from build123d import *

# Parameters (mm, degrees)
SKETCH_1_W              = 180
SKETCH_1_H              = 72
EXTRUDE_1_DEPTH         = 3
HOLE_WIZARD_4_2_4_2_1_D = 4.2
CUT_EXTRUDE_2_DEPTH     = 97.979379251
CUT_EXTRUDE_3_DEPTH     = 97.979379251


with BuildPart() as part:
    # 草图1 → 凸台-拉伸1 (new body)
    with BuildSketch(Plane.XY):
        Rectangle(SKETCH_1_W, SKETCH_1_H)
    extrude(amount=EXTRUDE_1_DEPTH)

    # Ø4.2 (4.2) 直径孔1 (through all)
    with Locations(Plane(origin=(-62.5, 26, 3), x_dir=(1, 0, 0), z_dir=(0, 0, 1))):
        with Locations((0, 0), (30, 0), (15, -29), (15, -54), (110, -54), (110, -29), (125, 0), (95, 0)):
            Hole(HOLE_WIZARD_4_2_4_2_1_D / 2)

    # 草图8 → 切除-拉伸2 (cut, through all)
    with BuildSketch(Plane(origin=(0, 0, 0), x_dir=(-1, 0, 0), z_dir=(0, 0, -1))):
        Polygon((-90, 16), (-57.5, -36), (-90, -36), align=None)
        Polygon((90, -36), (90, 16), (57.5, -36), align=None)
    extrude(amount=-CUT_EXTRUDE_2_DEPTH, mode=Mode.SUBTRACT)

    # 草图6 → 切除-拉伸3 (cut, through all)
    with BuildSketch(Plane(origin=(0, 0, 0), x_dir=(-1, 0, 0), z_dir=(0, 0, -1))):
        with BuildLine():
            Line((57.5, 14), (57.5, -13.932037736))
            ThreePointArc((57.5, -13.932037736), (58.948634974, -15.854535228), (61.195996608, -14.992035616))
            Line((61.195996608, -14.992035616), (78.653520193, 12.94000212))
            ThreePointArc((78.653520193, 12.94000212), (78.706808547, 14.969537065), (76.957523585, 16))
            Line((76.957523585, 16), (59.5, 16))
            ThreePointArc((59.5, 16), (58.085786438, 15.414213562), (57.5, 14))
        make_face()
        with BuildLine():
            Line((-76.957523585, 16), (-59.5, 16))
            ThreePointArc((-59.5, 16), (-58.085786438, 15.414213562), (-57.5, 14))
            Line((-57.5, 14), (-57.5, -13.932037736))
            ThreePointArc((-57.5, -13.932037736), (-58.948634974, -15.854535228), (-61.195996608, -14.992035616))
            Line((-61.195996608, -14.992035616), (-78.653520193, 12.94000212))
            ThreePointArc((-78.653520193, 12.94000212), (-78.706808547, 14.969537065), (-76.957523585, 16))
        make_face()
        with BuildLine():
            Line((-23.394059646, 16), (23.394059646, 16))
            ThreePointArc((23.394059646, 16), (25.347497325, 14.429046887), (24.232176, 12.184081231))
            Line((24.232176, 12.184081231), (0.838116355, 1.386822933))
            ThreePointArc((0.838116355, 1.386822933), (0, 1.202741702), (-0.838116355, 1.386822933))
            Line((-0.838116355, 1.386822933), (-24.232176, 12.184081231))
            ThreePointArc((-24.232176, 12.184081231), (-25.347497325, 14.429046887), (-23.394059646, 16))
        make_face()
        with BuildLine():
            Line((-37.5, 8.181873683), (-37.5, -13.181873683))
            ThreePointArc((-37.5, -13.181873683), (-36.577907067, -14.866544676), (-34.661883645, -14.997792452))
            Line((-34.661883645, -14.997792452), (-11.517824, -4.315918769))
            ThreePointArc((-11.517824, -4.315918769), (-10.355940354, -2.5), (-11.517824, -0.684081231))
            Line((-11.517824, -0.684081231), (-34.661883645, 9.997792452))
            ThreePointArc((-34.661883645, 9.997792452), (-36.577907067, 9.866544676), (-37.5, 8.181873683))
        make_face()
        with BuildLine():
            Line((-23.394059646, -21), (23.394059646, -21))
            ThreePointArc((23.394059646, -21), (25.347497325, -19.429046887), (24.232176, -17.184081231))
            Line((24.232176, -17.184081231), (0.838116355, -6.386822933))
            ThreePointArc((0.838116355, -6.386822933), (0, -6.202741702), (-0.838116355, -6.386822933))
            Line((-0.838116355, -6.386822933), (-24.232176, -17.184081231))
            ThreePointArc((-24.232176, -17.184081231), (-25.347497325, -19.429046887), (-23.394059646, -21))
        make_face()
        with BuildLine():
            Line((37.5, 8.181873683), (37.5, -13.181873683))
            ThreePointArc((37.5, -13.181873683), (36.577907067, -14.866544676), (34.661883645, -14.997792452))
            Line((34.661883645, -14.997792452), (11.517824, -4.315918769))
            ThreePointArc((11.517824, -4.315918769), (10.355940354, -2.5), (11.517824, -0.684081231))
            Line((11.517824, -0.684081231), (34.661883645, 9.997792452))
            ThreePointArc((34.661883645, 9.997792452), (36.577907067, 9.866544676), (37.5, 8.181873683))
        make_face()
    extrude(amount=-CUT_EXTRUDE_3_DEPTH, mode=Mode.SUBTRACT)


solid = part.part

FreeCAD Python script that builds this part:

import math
import FreeCAD as App
import Part
import Sketcher
Q = App.Units.Quantity

doc = App.newDocument("Part")
params = doc.addObject("Spreadsheet::Sheet", "Params")
for row, (alias, value) in enumerate([
    ("sketch1_width", "180 mm"),
    ("sketch1_height", "72 mm"),
    ("pad1_length", "3 mm"),
    ("sketch2_diameter", "4.2 mm"),
    ("hole_diameter", "4.2 mm"),
    ("sketch3_height", "52 mm"),
    ("sketch3_width", "32.5 mm"),
    ("sketch4_radius", "2 mm"),
], start=1):
    params.set(f"A{row}", alias)
    params.set(f"B{row}", "=" + value)
    params.setAlias(f"B{row}", alias)

body = doc.addObject("PartDesign::Body", "Body")

sketch1 = body.newObject("Sketcher::SketchObject", "Sketch")
sketch1.AttachmentSupport = (doc.getObject("XY_Plane"), [""])
sketch1.MapMode = "FlatFace"
sketch1.addGeometry([
    Part.LineSegment(App.Vector(-90, 36, 0), App.Vector(-90, -36, 0)),
    Part.LineSegment(App.Vector(-90, -36, 0), App.Vector(90, -36, 0)),
    Part.LineSegment(App.Vector(90, -36, 0), App.Vector(90, 36, 0)),
    Part.LineSegment(App.Vector(90, 36, 0), App.Vector(-90, 36, 0)),
], False)
sketch1.addConstraint([
    Sketcher.Constraint("Coincident", 0, 2, 1, 1),
    Sketcher.Constraint("Coincident", 1, 2, 2, 1),
    Sketcher.Constraint("Coincident", 2, 2, 3, 1),
    Sketcher.Constraint("Coincident", 3, 2, 0, 1),
    Sketcher.Constraint("Vertical", 0),
    Sketcher.Constraint("Horizontal", 1),
    Sketcher.Constraint("Vertical", 2),
    Sketcher.Constraint("Horizontal", 3),
    Sketcher.Constraint("Symmetric", 0, 2, 2, 2, -1, 1),
    Sketcher.Constraint("DistanceX", 1, 1, 1, 2, Q("180 mm")),
    Sketcher.Constraint("DistanceY", 0, 2, 0, 1, Q("72 mm")),
])
sketch1.setExpression("Constraints[9]", "Params.sketch1_width")
sketch1.setExpression("Constraints[10]", "Params.sketch1_height")
pad1 = body.newObject("PartDesign::Pad", "Pad")
pad1.Profile = sketch1
pad1.setExpression("Length", "Params.pad1_length")

sketch2 = body.newObject("Sketcher::SketchObject", "Sketch001")
sketch2.AttachmentSupport = (doc.getObject("XY_Plane"), [""])
sketch2.MapMode = "FlatFace"
sketch2.AttachmentOffset = App.Placement(App.Vector(0, 0, 3), App.Rotation())
sketch2.addGeometry([
    Part.Circle(App.Vector(-62.5, 26, 0), App.Vector(0, 0, 1), 2.1),
    Part.Circle(App.Vector(-32.5, 26, 0), App.Vector(0, 0, 1), 2.1),
    Part.Circle(App.Vector(-47.5, -3, 0), App.Vector(0, 0, 1), 2.1),
    Part.Circle(App.Vector(-47.5, -28, 0), App.Vector(0, 0, 1), 2.1),
    Part.Circle(App.Vector(47.5, -28, 0), App.Vector(0, 0, 1), 2.1),
    Part.Circle(App.Vector(47.5, -3, 0), App.Vector(0, 0, 1), 2.1),
    Part.Circle(App.Vector(62.5, 26, 0), App.Vector(0, 0, 1), 2.1),
    Part.Circle(App.Vector(32.5, 26, 0), App.Vector(0, 0, 1), 2.1),
], False)
sketch2.addConstraint([
    Sketcher.Constraint("Equal", 0, 1),
    Sketcher.Constraint("Equal", 1, 2),
    Sketcher.Constraint("Equal", 2, 3),
    Sketcher.Constraint("Equal", 3, 4),
    Sketcher.Constraint("Equal", 4, 5),
    Sketcher.Constraint("Equal", 5, 6),
    Sketcher.Constraint("Equal", 6, 7),
    Sketcher.Constraint("Symmetric", 3, 3, 4, 3, -2),
    Sketcher.Constraint("Symmetric", 2, 3, 5, 3, -2),
    Sketcher.Constraint("Symmetric", 0, 3, 6, 3, -2),
    Sketcher.Constraint("Symmetric", 1, 3, 7, 3, -2),
    Sketcher.Constraint("Horizontal", 0, 3, 1, 3),
    Sketcher.Constraint("Vertical", 2, 3, 3, 3),
    Sketcher.Constraint("Diameter", 0, Q("4.2 mm")),
    Sketcher.Constraint("DistanceY", -1, 1, 0, 3, Q("26 mm")),
    Sketcher.Constraint("DistanceY", 2, 3, -1, 1, Q("3 mm")),
    Sketcher.Constraint("DistanceY", 3, 3, -1, 1, Q("28 mm")),
    Sketcher.Constraint("DistanceX", 0, 3, 1, 3, Q("30 mm")),
    Sketcher.Constraint("DistanceX", 0, 3, 2, 3, Q("15 mm")),
    Sketcher.Constraint("DistanceX", 3, 3, 4, 3, Q("95 mm")),
])
sketch2.setExpression("Constraints[13]", "Params.sketch2_diameter")
doc.recompute()
hole = body.newObject("PartDesign::Hole", "Hole")
hole.Profile = sketch2
hole.ThreadType = "None"
hole.setExpression("Diameter", "Params.hole_diameter")
hole.DepthType = "ThroughAll"

sketch3 = body.newObject("Sketcher::SketchObject", "Sketch002")
sketch3.AttachmentSupport = (doc.getObject("XY_Plane"), [""])
sketch3.MapMode = "FlatFace"
sketch3.addGeometry([
    Part.LineSegment(App.Vector(58, -36, 0), App.Vector(90, 16, 0)),
    Part.LineSegment(App.Vector(90, 16, 0), App.Vector(90, -36, 0)),
    Part.LineSegment(App.Vector(90, -36, 0), App.Vector(58, -36, 0)),
    Part.LineSegment(App.Vector(-90, -36, 0), App.Vector(-90, 16, 0)),
    Part.LineSegment(App.Vector(-90, 16, 0), App.Vector(-58, -36, 0)),
    Part.LineSegment(App.Vector(-58, -36, 0), App.Vector(-90, -36, 0)),
], False)
sketch3.addConstraint([
    Sketcher.Constraint("Coincident", 0, 2, 1, 1),
    Sketcher.Constraint("Coincident", 1, 2, 2, 1),
    Sketcher.Constraint("Coincident", 2, 2, 0, 1),
    Sketcher.Constraint("Coincident", 3, 2, 4, 1),
    Sketcher.Constraint("Coincident", 4, 2, 5, 1),
    Sketcher.Constraint("Coincident", 5, 2, 3, 1),
    Sketcher.Constraint("Vertical", 1),
    Sketcher.Constraint("Horizontal", 2),
    Sketcher.Constraint("Vertical", 3),
    Sketcher.Constraint("Horizontal", 5),
    Sketcher.Constraint("Symmetric", 0, 2, 3, 2, -2),
    Sketcher.Constraint("Symmetric", 2, 2, 4, 2, -2),
    Sketcher.Constraint("DistanceY", 1, 2, 1, 1, Q("52 mm")),
    Sketcher.Constraint("DistanceX", 2, 2, 2, 1, Q("32.5 mm")),
    Sketcher.Constraint("DistanceX", -1, 1, 0, 2, Q("90 mm")),
    Sketcher.Constraint("DistanceY", -1, 1, 0, 2, Q("16 mm")),
])
sketch3.setExpression("Constraints[12]", "Params.sketch3_height")
sketch3.setExpression("Constraints[13]", "Params.sketch3_width")
pocket1 = body.newObject("PartDesign::Pocket", "Pocket")
pocket1.Profile = sketch3
pocket1.Type = "ThroughAll"
pocket1.Reversed = True

sketch4 = body.newObject("Sketcher::SketchObject", "Sketch003")
sketch4.AttachmentSupport = (doc.getObject("XY_Plane"), [""])
sketch4.MapMode = "FlatFace"
sketch4.addGeometry([
    Part.LineSegment(App.Vector(-57.5, 14, 0), App.Vector(-57.5, -13.9, 0)),
    Part.ArcOfCircle(Part.Circle(App.Vector(-59.5, -13.9, 0), App.Vector(0, 0, 1), 2), math.radians(-148), math.radians(0)),
    Part.LineSegment(App.Vector(-61.2, -15, 0), App.Vector(-78.7, 12.9, 0)),
    Part.ArcOfCircle(Part.Circle(App.Vector(-77, 14, 0), App.Vector(0, 0, 1), 2), math.radians(90), math.radians(212)),
    Part.LineSegment(App.Vector(-77, 16, 0), App.Vector(-59.5, 16, 0)),
    Part.ArcOfCircle(Part.Circle(App.Vector(-59.5, 14, 0), App.Vector(0, 0, 1), 2), math.radians(0), math.radians(90)),
    Part.LineSegment(App.Vector(59.5, 16, 0), App.Vector(77, 16, 0)),
    Part.ArcOfCircle(Part.Circle(App.Vector(77, 14, 0), App.Vector(0, 0, 1), 2), math.radians(-32), math.radians(90)),
    Part.LineSegment(App.Vector(78.7, 12.9, 0), App.Vector(61.2, -15, 0)),
    Part.ArcOfCircle(Part.Circle(App.Vector(59.5, -13.9, 0), App.Vector(0, 0, 1), 2), math.radians(180), math.radians(328)),
    Part.LineSegment(App.Vector(57.5, -13.9, 0), App.Vector(57.5, 14, 0)),
    Part.ArcOfCircle(Part.Circle(App.Vector(59.5, 14, 0), App.Vector(0, 0, 1), 2), math.radians(90), math.radians(180)),
    Part.LineSegment(App.Vector(-23.4, 16, 0), App.Vector(23.4, 16, 0)),
    Part.ArcOfCircle(Part.Circle(App.Vector(23.4, 14, 0), App.Vector(0, 0, 1), 2), math.radians(-65), math.radians(90)),
    Part.LineSegment(App.Vector(24.2, 12.2, 0), App.Vector(0.8, 1.4, 0)),
    Part.ArcOfCircle(Part.Circle(App.Vector(0, 3.2, 0), App.Vector(0, 0, 1), 2), math.radians(-115), math.radians(-65)),
    Part.LineSegment(App.Vector(-0.8, 1.4, 0), App.Vector(-24.2, 12.2, 0)),
    Part.ArcOfCircle(Part.Circle(App.Vector(-23.4, 14, 0), App.Vector(0, 0, 1), 2), math.radians(90), math.radians(245)),
    Part.LineSegment(App.Vector(37.5, 8.2, 0), App.Vector(37.5, -13.2, 0)),
    Part.ArcOfCircle(Part.Circle(App.Vector(35.5, -13.2, 0), App.Vector(0, 0, 1), 2), math.radians(-115), math.radians(0)),
    Part.LineSegment(App.Vector(34.7, -15, 0), App.Vector(11.5, -4.3, 0)),
    Part.ArcOfCircle(Part.Circle(App.Vector(12.4, -2.5, 0), App.Vector(0, 0, 1), 2), math.radians(115), math.radians(245)),
    Part.LineSegment(App.Vector(11.5, -0.7, 0), App.Vector(34.7, 10, 0)),
    Part.ArcOfCircle(Part.Circle(App.Vector(35.5, 8.2, 0), App.Vector(0, 0, 1), 2), math.radians(0), math.radians(115)),
    Part.LineSegment(App.Vector(23.4, -21, 0), App.Vector(-23.4, -21, 0)),
    Part.ArcOfCircle(Part.Circle(App.Vector(-23.4, -19, 0), App.Vector(0, 0, 1), 2), math.radians(115), math.radians(270)),
    Part.LineSegment(App.Vector(-24.2, -17.2, 0), App.Vector(-0.8, -6.4, 0)),
    Part.ArcOfCircle(Part.Circle(App.Vector(0, -8.2, 0), App.Vector(0, 0, 1), 2), math.radians(65), math.radians(115)),
    Part.LineSegment(App.Vector(0.8, -6.4, 0), App.Vector(24.2, -17.2, 0)),
    Part.ArcOfCircle(Part.Circle(App.Vector(23.4, -19, 0), App.Vector(0, 0, 1), 2), math.radians(-90), math.radians(65)),
    Part.LineSegment(App.Vector(-37.5, -13.2, 0), App.Vector(-37.5, 8.2, 0)),
    Part.ArcOfCircle(Part.Circle(App.Vector(-35.5, 8.2, 0), App.Vector(0, 0, 1), 2), math.radians(65), math.radians(180)),
    Part.LineSegment(App.Vector(-34.7, 10, 0), App.Vector(-11.5, -0.7, 0)),
    Part.ArcOfCircle(Part.Circle(App.Vector(-12.4, -2.5, 0), App.Vector(0, 0, 1), 2), math.radians(-65), math.radians(65)),
    Part.LineSegment(App.Vector(-11.5, -4.3, 0), App.Vector(-34.7, -15, 0)),
    Part.ArcOfCircle(Part.Circle(App.Vector(-35.5, -13.2, 0), App.Vector(0, 0, 1), 2), math.radians(180), math.radians(295)),
], False)
sketch4.addConstraint([
    Sketcher.Constraint("Tangent", 0, 2, 1, 2),
    Sketcher.Constraint("Tangent", 1, 1, 2, 1),
    Sketcher.Constraint("Tangent", 2, 2, 3, 2),
    Sketcher.Constraint("Tangent", 3, 1, 4, 1),
    Sketcher.Constraint("Tangent", 4, 2, 5, 2),
    Sketcher.Constraint("Tangent", 5, 1, 0, 1),
    Sketcher.Constraint("Tangent", 6, 2, 7, 2),
    Sketcher.Constraint("Tangent", 7, 1, 8, 1),
    Sketcher.Constraint("Tangent", 8, 2, 9, 2),
    Sketcher.Constraint("Tangent", 9, 1, 10, 1),
    Sketcher.Constraint("Tangent", 10, 2, 11, 2),
    Sketcher.Constraint("Tangent", 11, 1, 6, 1),
    Sketcher.Constraint("Tangent", 12, 2, 13, 2),
    Sketcher.Constraint("Tangent", 13, 1, 14, 1),
    Sketcher.Constraint("Tangent", 14, 2, 15, 2),
    Sketcher.Constraint("Tangent", 15, 1, 16, 1),
    Sketcher.Constraint("Tangent", 16, 2, 17, 2),
    Sketcher.Constraint("Tangent", 17, 1, 12, 1),
    Sketcher.Constraint("Tangent", 18, 2, 19, 2),
    Sketcher.Constraint("Tangent", 19, 1, 20, 1),
    Sketcher.Constraint("Tangent", 20, 2, 21, 2),
    Sketcher.Constraint("Tangent", 21, 1, 22, 1),
    Sketcher.Constraint("Tangent", 22, 2, 23, 2),
    Sketcher.Constraint("Tangent", 23, 1, 18, 1),
    Sketcher.Constraint("Tangent", 24, 2, 25, 2),
    Sketcher.Constraint("Tangent", 25, 1, 26, 1),
    Sketcher.Constraint("Tangent", 26, 2, 27, 2),
    Sketcher.Constraint("Tangent", 27, 1, 28, 1),
    Sketcher.Constraint("Tangent", 28, 2, 29, 2),
    Sketcher.Constraint("Tangent", 29, 1, 24, 1),
    Sketcher.Constraint("Tangent", 30, 2, 31, 2),
    Sketcher.Constraint("Tangent", 31, 1, 32, 1),
    Sketcher.Constraint("Tangent", 32, 2, 33, 2),
    Sketcher.Constraint("Tangent", 33, 1, 34, 1),
    Sketcher.Constraint("Tangent", 34, 2, 35, 2),
    Sketcher.Constraint("Tangent", 35, 1, 30, 1),
    Sketcher.Constraint("Vertical", 0),
    Sketcher.Constraint("Horizontal", 4),
    Sketcher.Constraint("Horizontal", 6),
    Sketcher.Constraint("Vertical", 10),
    Sketcher.Constraint("Horizontal", 12),
    Sketcher.Constraint("Vertical", 18),
    Sketcher.Constraint("Horizontal", 24),
    Sketcher.Constraint("Vertical", 30),
    Sketcher.Constraint("Equal", 1, 3),
    Sketcher.Constraint("Equal", 3, 5),
    Sketcher.Constraint("Equal", 5, 7),
    Sketcher.Constraint("Equal", 7, 9),
    Sketcher.Constraint("Equal", 9, 11),
    Sketcher.Constraint("Equal", 11, 13),
    Sketcher.Constraint("Equal", 13, 15),
    Sketcher.Constraint("Equal", 15, 17),
    Sketcher.Constraint("Equal", 17, 19),
    Sketcher.Constraint("Equal", 19, 21),
    Sketcher.Constraint("Equal", 21, 23),
    Sketcher.Constraint("Equal", 23, 25),
    Sketcher.Constraint("Equal", 25, 27),
    Sketcher.Constraint("Equal", 27, 29),
    Sketcher.Constraint("Equal", 29, 31),
    Sketcher.Constraint("Equal", 31, 33),
    Sketcher.Constraint("Equal", 33, 35),
    Sketcher.Constraint("Symmetric", 3, 3, 7, 3, -2),
    Sketcher.Constraint("Symmetric", 1, 3, 9, 3, -2),
    Sketcher.Constraint("Symmetric", 23, 3, 31, 3, -2),
    Sketcher.Constraint("Symmetric", 21, 3, 33, 3, -2),
    Sketcher.Constraint("Symmetric", 14, 2, 15, 1, -2),
    Sketcher.Constraint("Symmetric", 26, 2, 27, 1, -2),
    Sketcher.Constraint("Parallel", 16, 20),
    Sketcher.Constraint("Parallel", 14, 22),
    Sketcher.Constraint("Parallel", 22, 26),
    Sketcher.Constraint("Parallel", 26, 34),
    Sketcher.Constraint("Horizontal", 11, 3, 13, 3),
    Sketcher.Constraint("Vertical", 17, 3, 25, 3),
    Sketcher.Constraint("Radius", 1, Q("2 mm")),
    Sketcher.Constraint("DistanceY", -1, 1, 3, 3, Q("14 mm")),
    Sketcher.Constraint("DistanceY", 25, 3, -1, 1, Q("19 mm")),
    Sketcher.Constraint("DistanceX", 1, 3, 9, 3, Q("119 mm")),
    Sketcher.Constraint("DistanceX", 19, 3, 9, 3, Q("24 mm")),
    Sketcher.Constraint("DistanceY", 21, 3, -1, 1, Q("2.5 mm")),
    Sketcher.Constraint("DistanceX", 17, 3, 21, 3, Q("35.75 mm")),
    Sketcher.Constraint("DistanceX", 12, 1, 12, 2, Q("46.788119 mm")),
    Sketcher.Constraint("Distance", 2, Q("32.93879 mm")),
    Sketcher.Constraint("DistanceX", 4, 1, 4, 2, Q("17.457524 mm")),
    Sketcher.Constraint("DistanceY", 18, 2, 18, 1, Q("21.363747 mm")),
])
sketch4.setExpression("Constraints[73]", "Params.sketch4_radius")
pocket2 = body.newObject("PartDesign::Pocket", "Pocket001")
pocket2.Profile = sketch4
pocket2.Type = "ThroughAll"
pocket2.Reversed = True

doc.recompute()
